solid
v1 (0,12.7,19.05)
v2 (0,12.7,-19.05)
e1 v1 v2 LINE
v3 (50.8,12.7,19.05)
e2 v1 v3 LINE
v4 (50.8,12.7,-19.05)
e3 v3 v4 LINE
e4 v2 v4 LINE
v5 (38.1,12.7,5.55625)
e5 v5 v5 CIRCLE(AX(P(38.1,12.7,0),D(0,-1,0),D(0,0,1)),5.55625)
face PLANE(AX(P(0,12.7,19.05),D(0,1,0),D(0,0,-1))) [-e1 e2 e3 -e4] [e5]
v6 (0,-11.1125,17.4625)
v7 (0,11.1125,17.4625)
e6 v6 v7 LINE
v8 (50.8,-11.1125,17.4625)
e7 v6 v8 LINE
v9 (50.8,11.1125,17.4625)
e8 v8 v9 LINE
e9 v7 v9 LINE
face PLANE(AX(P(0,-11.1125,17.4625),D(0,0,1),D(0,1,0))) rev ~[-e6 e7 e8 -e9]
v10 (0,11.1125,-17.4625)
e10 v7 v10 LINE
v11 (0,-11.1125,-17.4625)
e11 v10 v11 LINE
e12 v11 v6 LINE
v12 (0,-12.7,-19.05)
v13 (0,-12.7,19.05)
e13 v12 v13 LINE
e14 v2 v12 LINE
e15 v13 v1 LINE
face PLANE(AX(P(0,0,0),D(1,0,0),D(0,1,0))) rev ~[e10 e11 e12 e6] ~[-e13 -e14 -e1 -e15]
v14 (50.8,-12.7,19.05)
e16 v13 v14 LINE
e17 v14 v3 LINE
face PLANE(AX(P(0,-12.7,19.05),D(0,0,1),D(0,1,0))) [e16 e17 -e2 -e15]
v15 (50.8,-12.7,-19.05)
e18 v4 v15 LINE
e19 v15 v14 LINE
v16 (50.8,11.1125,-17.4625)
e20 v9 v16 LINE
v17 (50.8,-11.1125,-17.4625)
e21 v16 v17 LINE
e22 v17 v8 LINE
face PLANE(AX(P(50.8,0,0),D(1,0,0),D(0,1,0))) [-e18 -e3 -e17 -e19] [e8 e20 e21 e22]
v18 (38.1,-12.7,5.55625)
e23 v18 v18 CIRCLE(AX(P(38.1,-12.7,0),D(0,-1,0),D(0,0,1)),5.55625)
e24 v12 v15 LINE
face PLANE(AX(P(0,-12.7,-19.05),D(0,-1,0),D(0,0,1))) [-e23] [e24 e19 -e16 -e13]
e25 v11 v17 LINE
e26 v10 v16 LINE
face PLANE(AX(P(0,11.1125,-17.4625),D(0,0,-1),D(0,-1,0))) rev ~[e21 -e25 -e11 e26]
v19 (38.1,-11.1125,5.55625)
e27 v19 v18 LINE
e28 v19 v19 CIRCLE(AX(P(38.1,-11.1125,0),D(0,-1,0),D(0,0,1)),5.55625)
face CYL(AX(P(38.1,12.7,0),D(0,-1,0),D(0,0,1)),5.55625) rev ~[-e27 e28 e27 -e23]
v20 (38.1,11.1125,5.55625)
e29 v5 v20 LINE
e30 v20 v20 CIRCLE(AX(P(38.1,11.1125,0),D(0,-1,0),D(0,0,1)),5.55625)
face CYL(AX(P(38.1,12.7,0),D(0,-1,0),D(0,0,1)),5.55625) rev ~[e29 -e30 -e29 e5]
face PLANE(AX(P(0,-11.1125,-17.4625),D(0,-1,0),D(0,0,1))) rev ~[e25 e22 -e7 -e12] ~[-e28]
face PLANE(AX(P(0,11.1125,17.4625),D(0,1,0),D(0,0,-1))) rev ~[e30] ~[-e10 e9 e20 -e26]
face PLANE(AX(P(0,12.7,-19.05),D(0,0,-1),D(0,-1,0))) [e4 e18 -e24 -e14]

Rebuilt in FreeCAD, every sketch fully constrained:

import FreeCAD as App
import Part
import Sketcher

V = App.Vector
Q = App.Units.Quantity


def add_polygon(sketch, points):
    """Adds a closed chain of lines whose ends are joined by coincident constraints."""
    first, n = sketch.GeometryCount, len(points)
    for a, b in zip(points, points[1:] + points[:1]):
        sketch.addGeometry(Part.LineSegment(App.Vector(*a, 0), App.Vector(*b, 0)), False)
    for i in range(n):
        sketch.addConstraint(Sketcher.Constraint("Coincident", first + i, 2, first + (i + 1) % n, 1))

doc = App.newDocument("Part")
body = doc.addObject("PartDesign::Body", "Body")

# Sketch on YZ plane
sketch1 = body.newObject("Sketcher::SketchObject", "Sketch")
sketch1.AttachmentSupport = (doc.getObject("YZ_Plane"), [""])
sketch1.MapMode = "FlatFace"
add_polygon(sketch1, [(13, 19), (-13, 19), (-13, -19), (13, -19)])  # lines 0-3
add_polygon(sketch1, [(-11, -17), (-11, 17), (11, 17), (11, -17)])  # lines 4-7
sketch1.addConstraint(Sketcher.Constraint("Horizontal", 0))
sketch1.addConstraint(Sketcher.Constraint("Vertical", 1))
sketch1.addConstraint(Sketcher.Constraint("Horizontal", 2))
sketch1.addConstraint(Sketcher.Constraint("Vertical", 3))
sketch1.addConstraint(Sketcher.Constraint("Vertical", 4))
sketch1.addConstraint(Sketcher.Constraint("Horizontal", 5))
sketch1.addConstraint(Sketcher.Constraint("Vertical", 6))
sketch1.addConstraint(Sketcher.Constraint("Horizontal", 7))
sketch1.addConstraint(Sketcher.Constraint("Symmetric", 0, 2, 2, 2, -1, 1))
sketch1.addConstraint(Sketcher.Constraint("Symmetric", 4, 2, 6, 2, -1, 1))
sketch1.addConstraint(Sketcher.Constraint("DistanceX", 0, 2, 0, 1, Q("1 in")))
sketch1.addConstraint(Sketcher.Constraint("DistanceY", 1, 2, 1, 1, Q("1.5 in")))
sketch1.addConstraint(Sketcher.Constraint("DistanceX", 0, 2, 4, 2, Q("0.0625 in")))
sketch1.addConstraint(Sketcher.Constraint("DistanceY", 4, 2, 0, 2, Q("0.0625 in")))
pad1 = body.newObject("PartDesign::Pad", "Pad")
pad1.Profile = sketch1
pad1.Length = Q("2 in")

# Sketch on XZ plane
sketch2 = body.newObject("Sketcher::SketchObject", "Sketch001")
sketch2.AttachmentSupport = (doc.getObject("XZ_Plane"), [""])
sketch2.MapMode = "FlatFace"
sketch2.AttachmentOffset = App.Placement(V(0, 0, -0.5 * 25.4), App.Rotation())
sketch2.addGeometry(Part.Circle(V(38, 0, 0), V(0, 0, 1), 6), False)
sketch2.addConstraint(Sketcher.Constraint("PointOnObject", 0, 3, -1))
sketch2.addConstraint(Sketcher.Constraint("Diameter", 0, Q("0.4375 in")))
sketch2.addConstraint(Sketcher.Constraint("DistanceX", -1, 1, 0, 3, Q("1.5 in")))
doc.recompute()
hole = body.newObject("PartDesign::Hole", "Hole")
hole.Profile = sketch2
hole.ThreadType = "None"
hole.Diameter = Q("0.4375 in")
hole.DepthType = "ThroughAll"
hole.Reversed = True

doc.recompute()
